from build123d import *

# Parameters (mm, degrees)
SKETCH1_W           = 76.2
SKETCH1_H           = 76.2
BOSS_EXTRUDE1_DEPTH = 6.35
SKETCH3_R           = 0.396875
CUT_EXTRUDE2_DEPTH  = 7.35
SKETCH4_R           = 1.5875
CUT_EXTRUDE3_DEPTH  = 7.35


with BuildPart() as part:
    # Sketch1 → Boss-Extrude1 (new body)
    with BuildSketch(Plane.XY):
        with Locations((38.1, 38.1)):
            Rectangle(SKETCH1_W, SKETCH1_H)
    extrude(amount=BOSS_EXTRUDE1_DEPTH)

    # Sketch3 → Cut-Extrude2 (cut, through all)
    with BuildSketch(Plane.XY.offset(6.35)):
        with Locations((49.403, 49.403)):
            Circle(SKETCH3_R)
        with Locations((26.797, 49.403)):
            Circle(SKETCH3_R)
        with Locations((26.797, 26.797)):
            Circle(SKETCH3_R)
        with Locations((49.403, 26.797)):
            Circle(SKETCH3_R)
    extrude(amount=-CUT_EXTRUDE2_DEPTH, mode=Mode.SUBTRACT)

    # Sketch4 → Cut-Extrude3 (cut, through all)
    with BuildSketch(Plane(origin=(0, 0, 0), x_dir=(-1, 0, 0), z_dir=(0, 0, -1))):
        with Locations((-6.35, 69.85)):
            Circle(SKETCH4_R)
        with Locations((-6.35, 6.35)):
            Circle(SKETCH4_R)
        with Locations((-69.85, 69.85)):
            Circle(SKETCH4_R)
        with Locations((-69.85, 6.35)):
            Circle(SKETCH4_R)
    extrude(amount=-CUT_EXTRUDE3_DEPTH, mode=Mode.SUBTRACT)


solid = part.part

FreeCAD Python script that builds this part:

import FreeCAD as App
import Part
import Sketcher

V = App.Vector
Q = App.Units.Quantity

doc = App.newDocument("Part")
body = doc.addObject("PartDesign::Body", "Body")

# Sketch on XY plane
sketch1 = doc.addObject("Sketcher::SketchObject", "Sketch")
body.addObject(sketch1)
sketch1.AttachmentSupport = (doc.XY_Plane, [""])
sketch1.MapMode = "FlatFace"
sketch1.addGeometry(Part.LineSegment(V(0, 76, 0), V(0, 0, 0)), False)
sketch1.addGeometry(Part.LineSegment(V(0, 0, 0), V(76, 0, 0)), False)
sketch1.addGeometry(Part.LineSegment(V(76, 0, 0), V(76, 76, 0)), False)
sketch1.addGeometry(Part.LineSegment(V(76, 76, 0), V(0, 76, 0)), False)
sketch1.addConstraint(Sketcher.Constraint("Coincident", 0, 2, 1, 1))
sketch1.addConstraint(Sketcher.Constraint("Coincident", 1, 2, 2, 1))
sketch1.addConstraint(Sketcher.Constraint("Coincident", 2, 2, 3, 1))
sketch1.addConstraint(Sketcher.Constraint("Coincident", 3, 2, 0, 1))
sketch1.addConstraint(Sketcher.Constraint("Vertical", 0))
sketch1.addConstraint(Sketcher.Constraint("Horizontal", 1))
sketch1.addConstraint(Sketcher.Constraint("Vertical", 2))
sketch1.addConstraint(Sketcher.Constraint("Horizontal", 3))
sketch1.addConstraint(Sketcher.Constraint("Coincident", 0, 2, -1, 1))
sketch1.addConstraint(Sketcher.Constraint("Equal", 3, 0))
sketch1.addConstraint(Sketcher.Constraint("DistanceX", 1, 1, 1, 2, Q("3 in")))
pad1 = doc.addObject("PartDesign::Pad", "Pad")
body.addObject(pad1)
pad1.Profile = sketch1
pad1.Length = Q("0.25 in")

# Sketch on XY plane
sketch2 = doc.addObject("Sketcher::SketchObject", "Sketch001")
body.addObject(sketch2)
sketch2.AttachmentSupport = (doc.XY_Plane, [""])
sketch2.MapMode = "FlatFace"
sketch2.AttachmentOffset = App.Placement(V(0, 0, 0.25 * 25.4), App.Rotation())
sketch2.addGeometry(Part.Circle(V(49.4, 49.4, 0), V(0, 0, 1), 0.4), False)
sketch2.addGeometry(Part.Circle(V(26.8, 49.4, 0), V(0, 0, 1), 0.4), False)
sketch2.addGeometry(Part.Circle(V(26.8, 26.8, 0), V(0, 0, 1), 0.4), False)
sketch2.addGeometry(Part.Circle(V(49.4, 26.8, 0), V(0, 0, 1), 0.4), False)
sketch2.addConstraint(Sketcher.Constraint("Equal", 0, 1))
sketch2.addConstraint(Sketcher.Constraint("Equal", 1, 2))
sketch2.addConstraint(Sketcher.Constraint("Equal", 2, 3))
sketch2.addConstraint(Sketcher.Constraint("Horizontal", 0, 3, 1, 3))
sketch2.addConstraint(Sketcher.Constraint("Horizontal", 2, 3, 3, 3))
sketch2.addConstraint(Sketcher.Constraint("Vertical", 1, 3, 2, 3))
sketch2.addConstraint(Sketcher.Constraint("Vertical", 0, 3, 3, 3))
sketch2.addConstraint(Sketcher.Constraint("Diameter", 0, Q("0.03125 in")))
sketch2.addConstraint(Sketcher.Constraint("DistanceX", 1, 3, 0, 3, Q("0.89 in")))
sketch2.addConstraint(Sketcher.Constraint("DistanceY", 2, 3, 1, 3, Q("0.89 in")))
sketch2.addConstraint(Sketcher.Constraint("DistanceX", -1, 1, 0, 3, Q("1.945 in")))
sketch2.addConstraint(Sketcher.Constraint("DistanceY", -1, 1, 0, 3, Q("1.945 in")))
pocket1 = doc.addObject("PartDesign::Pocket", "Pocket")
body.addObject(pocket1)
pocket1.Profile = sketch2
pocket1.Type = "ThroughAll"

# Sketch on XY plane
sketch3 = doc.addObject("Sketcher::SketchObject", "Sketch002")
body.addObject(sketch3)
sketch3.AttachmentSupport = (doc.XY_Plane, [""])
sketch3.MapMode = "FlatFace"
sketch3.addGeometry(Part.Circle(V(6.3, 69.8, 0), V(0, 0, 1), 1.6), False)
sketch3.addGeometry(Part.Circle(V(6.3, 6.3, 0), V(0, 0, 1), 1.6), False)
sketch3.addGeometry(Part.Circle(V(69.8, 69.8, 0), V(0, 0, 1), 1.6), False)
sketch3.addGeometry(Part.Circle(V(69.8, 6.3, 0), V(0, 0, 1), 1.6), False)
sketch3.addConstraint(Sketcher.Constraint("Equal", 0, 1))
sketch3.addConstraint(Sketcher.Constraint("Equal", 1, 2))
sketch3.addConstraint(Sketcher.Constraint("Equal", 2, 3))
sketch3.addConstraint(Sketcher.Constraint("Horizontal", 0, 3, 2, 3))
sketch3.addConstraint(Sketcher.Constraint("Horizontal", 1, 3, 3, 3))
sketch3.addConstraint(Sketcher.Constraint("Vertical", 0, 3, 1, 3))
sketch3.addConstraint(Sketcher.Constraint("Vertical", 2, 3, 3, 3))
sketch3.addConstraint(Sketcher.Constraint("Diameter", 0, Q("0.125 in")))
sketch3.addConstraint(Sketcher.Constraint("DistanceY", 1, 3, 0, 3, Q("2.5 in")))
sketch3.addConstraint(Sketcher.Constraint("DistanceX", 0, 3, 2, 3, Q("2.5 in")))
sketch3.addConstraint(Sketcher.Constraint("DistanceX", -1, 1, 0, 3, Q("0.25 in")))
sketch3.addConstraint(Sketcher.Constraint("DistanceY", -1, 1, 0, 3, Q("2.75 in")))
pocket2 = doc.addObject("PartDesign::Pocket", "Pocket001")
body.addObject(pocket2)
pocket2.Profile = sketch3
pocket2.Type = "ThroughAll"
pocket2.Reversed = True

doc.recompute()
